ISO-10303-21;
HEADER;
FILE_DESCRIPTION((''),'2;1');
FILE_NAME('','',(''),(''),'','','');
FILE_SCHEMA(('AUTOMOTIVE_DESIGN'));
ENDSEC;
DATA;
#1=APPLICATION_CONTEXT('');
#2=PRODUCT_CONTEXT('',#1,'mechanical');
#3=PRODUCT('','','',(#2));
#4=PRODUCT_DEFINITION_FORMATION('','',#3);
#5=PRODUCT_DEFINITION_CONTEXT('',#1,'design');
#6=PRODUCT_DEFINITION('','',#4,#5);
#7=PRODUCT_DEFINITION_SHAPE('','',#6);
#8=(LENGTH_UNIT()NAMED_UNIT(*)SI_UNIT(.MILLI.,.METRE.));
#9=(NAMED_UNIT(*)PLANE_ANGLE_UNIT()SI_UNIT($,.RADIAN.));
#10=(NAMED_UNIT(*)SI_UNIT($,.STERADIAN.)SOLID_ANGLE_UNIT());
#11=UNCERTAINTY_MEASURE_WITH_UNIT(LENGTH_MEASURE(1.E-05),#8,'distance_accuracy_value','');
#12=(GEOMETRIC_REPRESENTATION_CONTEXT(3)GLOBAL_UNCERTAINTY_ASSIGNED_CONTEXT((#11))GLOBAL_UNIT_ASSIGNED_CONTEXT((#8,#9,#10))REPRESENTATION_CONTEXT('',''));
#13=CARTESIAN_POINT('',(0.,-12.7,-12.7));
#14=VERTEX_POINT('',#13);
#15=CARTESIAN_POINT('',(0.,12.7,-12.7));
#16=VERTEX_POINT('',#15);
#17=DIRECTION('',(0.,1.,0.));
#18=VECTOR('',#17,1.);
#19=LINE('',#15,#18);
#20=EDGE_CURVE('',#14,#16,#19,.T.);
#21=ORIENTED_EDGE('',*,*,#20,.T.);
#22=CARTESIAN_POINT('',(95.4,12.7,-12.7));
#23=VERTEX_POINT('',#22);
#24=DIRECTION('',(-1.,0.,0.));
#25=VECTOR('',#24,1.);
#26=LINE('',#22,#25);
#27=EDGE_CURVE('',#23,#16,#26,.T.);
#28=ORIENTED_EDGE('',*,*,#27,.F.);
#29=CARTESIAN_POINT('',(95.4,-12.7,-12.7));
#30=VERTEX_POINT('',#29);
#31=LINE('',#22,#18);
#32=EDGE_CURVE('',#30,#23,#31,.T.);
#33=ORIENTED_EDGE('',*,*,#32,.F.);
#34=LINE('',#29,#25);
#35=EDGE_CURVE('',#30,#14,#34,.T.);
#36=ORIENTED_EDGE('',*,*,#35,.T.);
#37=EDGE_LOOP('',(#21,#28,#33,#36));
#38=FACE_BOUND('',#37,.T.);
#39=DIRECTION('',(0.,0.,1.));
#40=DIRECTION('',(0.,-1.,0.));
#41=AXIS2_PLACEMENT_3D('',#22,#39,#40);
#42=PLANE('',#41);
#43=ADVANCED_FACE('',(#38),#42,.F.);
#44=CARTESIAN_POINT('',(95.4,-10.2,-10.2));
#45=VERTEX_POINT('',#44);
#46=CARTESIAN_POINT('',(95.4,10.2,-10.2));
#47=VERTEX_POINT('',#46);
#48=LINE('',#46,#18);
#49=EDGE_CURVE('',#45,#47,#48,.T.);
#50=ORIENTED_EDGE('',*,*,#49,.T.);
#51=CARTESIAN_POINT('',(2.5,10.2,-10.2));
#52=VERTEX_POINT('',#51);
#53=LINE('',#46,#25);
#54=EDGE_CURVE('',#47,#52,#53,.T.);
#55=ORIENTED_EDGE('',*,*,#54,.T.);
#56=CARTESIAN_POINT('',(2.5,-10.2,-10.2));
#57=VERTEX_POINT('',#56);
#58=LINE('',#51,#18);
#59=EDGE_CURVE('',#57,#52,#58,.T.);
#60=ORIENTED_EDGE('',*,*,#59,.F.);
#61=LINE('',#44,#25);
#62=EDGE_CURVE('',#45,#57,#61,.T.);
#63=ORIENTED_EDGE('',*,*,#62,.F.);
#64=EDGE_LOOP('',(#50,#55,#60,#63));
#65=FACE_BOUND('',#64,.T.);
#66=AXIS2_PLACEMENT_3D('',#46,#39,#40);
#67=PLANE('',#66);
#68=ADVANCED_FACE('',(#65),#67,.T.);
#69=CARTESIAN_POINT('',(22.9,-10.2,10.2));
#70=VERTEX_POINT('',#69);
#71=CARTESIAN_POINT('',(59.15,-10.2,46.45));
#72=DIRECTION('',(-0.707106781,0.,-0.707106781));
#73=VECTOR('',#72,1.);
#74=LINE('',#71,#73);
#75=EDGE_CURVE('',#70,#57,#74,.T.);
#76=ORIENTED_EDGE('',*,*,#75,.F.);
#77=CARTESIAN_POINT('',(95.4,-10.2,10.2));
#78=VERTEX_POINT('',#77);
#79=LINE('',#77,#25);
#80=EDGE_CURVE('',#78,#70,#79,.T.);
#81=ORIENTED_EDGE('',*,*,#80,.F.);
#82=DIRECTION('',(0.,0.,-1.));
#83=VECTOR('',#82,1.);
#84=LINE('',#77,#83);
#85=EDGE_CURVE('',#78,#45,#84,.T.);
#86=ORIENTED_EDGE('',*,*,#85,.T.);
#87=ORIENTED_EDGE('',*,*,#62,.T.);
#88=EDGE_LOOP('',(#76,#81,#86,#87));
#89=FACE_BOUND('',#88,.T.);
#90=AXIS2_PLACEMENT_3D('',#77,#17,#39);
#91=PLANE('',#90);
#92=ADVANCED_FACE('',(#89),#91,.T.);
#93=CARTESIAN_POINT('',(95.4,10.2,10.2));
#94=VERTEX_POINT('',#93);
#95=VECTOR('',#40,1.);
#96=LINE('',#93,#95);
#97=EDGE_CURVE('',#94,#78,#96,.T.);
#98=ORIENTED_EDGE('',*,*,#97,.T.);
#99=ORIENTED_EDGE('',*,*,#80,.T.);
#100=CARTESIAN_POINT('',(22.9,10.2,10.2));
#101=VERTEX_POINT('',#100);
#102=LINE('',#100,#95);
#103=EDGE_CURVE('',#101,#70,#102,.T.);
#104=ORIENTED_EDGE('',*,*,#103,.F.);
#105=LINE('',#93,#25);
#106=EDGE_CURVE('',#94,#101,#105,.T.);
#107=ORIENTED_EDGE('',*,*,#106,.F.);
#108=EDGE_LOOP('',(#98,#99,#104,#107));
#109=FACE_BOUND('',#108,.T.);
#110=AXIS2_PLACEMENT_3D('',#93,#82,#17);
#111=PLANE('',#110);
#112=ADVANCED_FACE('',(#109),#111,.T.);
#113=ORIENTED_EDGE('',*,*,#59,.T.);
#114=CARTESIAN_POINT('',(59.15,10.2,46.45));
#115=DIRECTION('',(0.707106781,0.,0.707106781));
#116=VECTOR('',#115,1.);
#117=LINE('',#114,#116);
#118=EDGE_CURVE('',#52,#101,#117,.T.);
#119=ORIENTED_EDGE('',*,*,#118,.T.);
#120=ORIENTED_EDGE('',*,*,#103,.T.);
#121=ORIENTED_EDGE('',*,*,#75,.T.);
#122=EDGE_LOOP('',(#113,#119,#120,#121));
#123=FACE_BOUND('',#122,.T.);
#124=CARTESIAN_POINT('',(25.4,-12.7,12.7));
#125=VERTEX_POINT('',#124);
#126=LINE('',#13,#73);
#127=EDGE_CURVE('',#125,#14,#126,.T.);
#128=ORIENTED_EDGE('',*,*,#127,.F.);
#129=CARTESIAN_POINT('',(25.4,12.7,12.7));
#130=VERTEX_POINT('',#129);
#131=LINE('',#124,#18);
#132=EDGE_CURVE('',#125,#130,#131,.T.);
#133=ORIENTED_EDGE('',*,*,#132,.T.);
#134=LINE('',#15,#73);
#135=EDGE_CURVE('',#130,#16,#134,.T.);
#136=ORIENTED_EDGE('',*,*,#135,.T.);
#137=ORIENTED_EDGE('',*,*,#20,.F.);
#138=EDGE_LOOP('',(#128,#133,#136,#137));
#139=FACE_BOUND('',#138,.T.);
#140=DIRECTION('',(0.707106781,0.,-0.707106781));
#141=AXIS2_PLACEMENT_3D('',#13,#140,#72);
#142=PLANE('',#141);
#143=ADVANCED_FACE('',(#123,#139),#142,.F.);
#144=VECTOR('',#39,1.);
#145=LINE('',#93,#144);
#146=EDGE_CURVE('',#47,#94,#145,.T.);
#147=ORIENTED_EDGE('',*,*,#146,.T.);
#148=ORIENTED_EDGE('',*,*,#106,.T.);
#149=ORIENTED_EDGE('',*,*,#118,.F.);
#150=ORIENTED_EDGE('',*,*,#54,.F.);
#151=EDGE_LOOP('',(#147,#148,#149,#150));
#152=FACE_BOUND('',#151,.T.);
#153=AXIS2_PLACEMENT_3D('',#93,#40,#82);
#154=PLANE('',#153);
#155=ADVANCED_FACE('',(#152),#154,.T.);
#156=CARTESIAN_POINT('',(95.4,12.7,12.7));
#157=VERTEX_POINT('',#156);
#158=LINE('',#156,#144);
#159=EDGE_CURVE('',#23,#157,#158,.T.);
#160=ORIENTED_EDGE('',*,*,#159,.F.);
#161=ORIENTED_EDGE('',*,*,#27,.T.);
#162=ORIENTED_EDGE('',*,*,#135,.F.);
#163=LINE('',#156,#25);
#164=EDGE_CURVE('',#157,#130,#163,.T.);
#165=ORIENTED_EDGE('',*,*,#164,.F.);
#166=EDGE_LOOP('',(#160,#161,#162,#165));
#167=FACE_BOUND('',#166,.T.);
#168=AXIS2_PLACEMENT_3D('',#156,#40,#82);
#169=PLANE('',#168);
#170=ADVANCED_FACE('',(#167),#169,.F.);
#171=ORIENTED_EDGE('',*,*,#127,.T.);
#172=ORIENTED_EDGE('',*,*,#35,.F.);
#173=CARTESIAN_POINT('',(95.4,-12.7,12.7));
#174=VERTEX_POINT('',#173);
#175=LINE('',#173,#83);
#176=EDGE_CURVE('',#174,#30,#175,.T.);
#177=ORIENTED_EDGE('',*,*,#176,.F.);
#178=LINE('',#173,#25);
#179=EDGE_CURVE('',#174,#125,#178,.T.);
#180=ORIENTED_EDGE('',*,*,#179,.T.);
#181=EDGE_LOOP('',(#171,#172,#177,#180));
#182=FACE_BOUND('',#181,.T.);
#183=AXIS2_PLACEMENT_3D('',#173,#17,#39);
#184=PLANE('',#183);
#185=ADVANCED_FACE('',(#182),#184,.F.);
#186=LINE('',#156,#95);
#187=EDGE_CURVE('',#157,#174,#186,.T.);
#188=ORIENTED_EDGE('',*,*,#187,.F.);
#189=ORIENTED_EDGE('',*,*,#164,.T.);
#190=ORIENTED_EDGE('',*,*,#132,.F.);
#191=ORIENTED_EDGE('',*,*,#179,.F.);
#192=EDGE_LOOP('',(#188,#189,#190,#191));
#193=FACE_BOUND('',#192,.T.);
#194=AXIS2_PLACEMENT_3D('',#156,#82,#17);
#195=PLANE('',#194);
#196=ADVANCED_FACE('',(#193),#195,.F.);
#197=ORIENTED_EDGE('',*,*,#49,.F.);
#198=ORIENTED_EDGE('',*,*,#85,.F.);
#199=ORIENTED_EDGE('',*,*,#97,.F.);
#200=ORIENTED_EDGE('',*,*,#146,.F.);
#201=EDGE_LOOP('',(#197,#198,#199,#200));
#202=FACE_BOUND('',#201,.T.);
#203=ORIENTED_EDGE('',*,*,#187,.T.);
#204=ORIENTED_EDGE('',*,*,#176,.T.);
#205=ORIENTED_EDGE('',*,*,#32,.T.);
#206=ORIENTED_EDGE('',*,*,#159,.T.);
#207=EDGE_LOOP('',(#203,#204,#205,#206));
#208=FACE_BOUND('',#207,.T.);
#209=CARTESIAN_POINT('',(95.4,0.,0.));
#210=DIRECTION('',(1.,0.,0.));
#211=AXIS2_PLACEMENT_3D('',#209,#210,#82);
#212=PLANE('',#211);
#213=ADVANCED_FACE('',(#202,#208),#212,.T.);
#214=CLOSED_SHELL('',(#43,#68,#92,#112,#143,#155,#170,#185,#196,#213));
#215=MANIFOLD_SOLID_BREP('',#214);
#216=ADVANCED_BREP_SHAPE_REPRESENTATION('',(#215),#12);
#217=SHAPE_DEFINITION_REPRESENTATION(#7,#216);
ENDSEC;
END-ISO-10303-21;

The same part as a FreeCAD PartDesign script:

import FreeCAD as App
import Part
import Sketcher
from FreeCAD import Vector

doc = App.newDocument("Part")
params = doc.addObject("Spreadsheet::Sheet", "Params")
for row, (alias, value) in enumerate([
    ("sketch1_width", "25.4 mm"),
    ("sketch1_width2", "20.4 mm"),
    ("pad1_length", "95.4 mm"),
    ("sketch2_width", "25.4 mm"),
], start=1):
    params.set(f"A{row}", alias)
    params.set(f"B{row}", "=" + value)
    params.setAlias(f"B{row}", alias)

body = doc.addObject("PartDesign::Body", "Body")

sketch1 = doc.addObject("Sketcher::SketchObject", "Sketch")
body.addObject(sketch1)
sketch1.AttachmentSupport = (doc.YZ_Plane, [""])
sketch1.MapMode = "FlatFace"
sketch1.addGeometry([
    Part.LineSegment(Vector(13, 13, 0), Vector(-13, 13, 0)),
    Part.LineSegment(Vector(-13, 13, 0), Vector(-13, -13, 0)),
    Part.LineSegment(Vector(-13, -13, 0), Vector(13, -13, 0)),
    Part.LineSegment(Vector(13, -13, 0), Vector(13, 13, 0)),
    Part.LineSegment(Vector(-10, -10, 0), Vector(-10, 10, 0)),
    Part.LineSegment(Vector(-10, 10, 0), Vector(10, 10, 0)),
    Part.LineSegment(Vector(10, 10, 0), Vector(10, -10, 0)),
    Part.LineSegment(Vector(10, -10, 0), Vector(-10, -10, 0)),
], False)
sketch1.addConstraint([
    Sketcher.Constraint("Coincident", 0, 2, 1, 1),
    Sketcher.Constraint("Coincident", 1, 2, 2, 1),
    Sketcher.Constraint("Coincident", 2, 2, 3, 1),
    Sketcher.Constraint("Coincident", 3, 2, 0, 1),
    Sketcher.Constraint("Coincident", 4, 2, 5, 1),
    Sketcher.Constraint("Coincident", 5, 2, 6, 1),
    Sketcher.Constraint("Coincident", 6, 2, 7, 1),
    Sketcher.Constraint("Coincident", 7, 2, 4, 1),
    Sketcher.Constraint("Horizontal", 0),
    Sketcher.Constraint("Vertical", 1),
    Sketcher.Constraint("Horizontal", 2),
    Sketcher.Constraint("Vertical", 3),
    Sketcher.Constraint("Vertical", 4),
    Sketcher.Constraint("Horizontal", 5),
    Sketcher.Constraint("Vertical", 6),
    Sketcher.Constraint("Horizontal", 7),
    Sketcher.Constraint("Symmetric", 0, 2, 2, 2, -1, 1),
    Sketcher.Constraint("Symmetric", 4, 2, 6, 2, -1, 1),
    Sketcher.Constraint("Equal", 2, 1),
    Sketcher.Constraint("Equal", 7, 4),
    Sketcher.Constraint("DistanceX", 0, 2, 0, 1, 25.4),
    Sketcher.Constraint("DistanceX", 5, 1, 5, 2, 20.4),
])
sketch1.setExpression("Constraints[20]", "Params.sketch1_width")
sketch1.setExpression("Constraints[21]", "Params.sketch1_width2")
pad1 = doc.addObject("PartDesign::Pad", "Pad")
body.addObject(pad1)
pad1.Profile = sketch1
pad1.setExpression("Length", "Params.pad1_length")

sketch2 = doc.addObject("Sketcher::SketchObject", "Sketch001")
body.addObject(sketch2)
sketch2.AttachmentSupport = (doc.XZ_Plane, [""])
sketch2.MapMode = "FlatFace"
sketch2.AttachmentOffset = App.Placement(Vector(0, 0, -12.7), App.Rotation())
sketch2.addGeometry([
    Part.LineSegment(Vector(0, -13, 0), Vector(0, 13, 0)),
    Part.LineSegment(Vector(0, 13, 0), Vector(25, 13, 0)),
    Part.LineSegment(Vector(25, 13, 0), Vector(0, -13, 0)),
], False)
sketch2.addConstraint([
    Sketcher.Constraint("Coincident", 0, 2, 1, 1),
    Sketcher.Constraint("Coincident", 1, 2, 2, 1),
    Sketcher.Constraint("Coincident", 2, 2, 0, 1),
    Sketcher.Constraint("Vertical", 0),
    Sketcher.Constraint("Horizontal", 1),
    Sketcher.Constraint("Symmetric", 0, 2, 2, 2, -1, 1),
    Sketcher.Constraint("Equal", 1, 0),
    Sketcher.Constraint("DistanceX", 1, 1, 1, 2, 25.4),
])
sketch2.setExpression("Constraints[7]", "Params.sketch2_width")
pocket1 = doc.addObject("PartDesign::Pocket", "Pocket")
body.addObject(pocket1)
pocket1.Profile = sketch2
pocket1.Type = "ThroughAll"
pocket1.Reversed = True

doc.recompute()
